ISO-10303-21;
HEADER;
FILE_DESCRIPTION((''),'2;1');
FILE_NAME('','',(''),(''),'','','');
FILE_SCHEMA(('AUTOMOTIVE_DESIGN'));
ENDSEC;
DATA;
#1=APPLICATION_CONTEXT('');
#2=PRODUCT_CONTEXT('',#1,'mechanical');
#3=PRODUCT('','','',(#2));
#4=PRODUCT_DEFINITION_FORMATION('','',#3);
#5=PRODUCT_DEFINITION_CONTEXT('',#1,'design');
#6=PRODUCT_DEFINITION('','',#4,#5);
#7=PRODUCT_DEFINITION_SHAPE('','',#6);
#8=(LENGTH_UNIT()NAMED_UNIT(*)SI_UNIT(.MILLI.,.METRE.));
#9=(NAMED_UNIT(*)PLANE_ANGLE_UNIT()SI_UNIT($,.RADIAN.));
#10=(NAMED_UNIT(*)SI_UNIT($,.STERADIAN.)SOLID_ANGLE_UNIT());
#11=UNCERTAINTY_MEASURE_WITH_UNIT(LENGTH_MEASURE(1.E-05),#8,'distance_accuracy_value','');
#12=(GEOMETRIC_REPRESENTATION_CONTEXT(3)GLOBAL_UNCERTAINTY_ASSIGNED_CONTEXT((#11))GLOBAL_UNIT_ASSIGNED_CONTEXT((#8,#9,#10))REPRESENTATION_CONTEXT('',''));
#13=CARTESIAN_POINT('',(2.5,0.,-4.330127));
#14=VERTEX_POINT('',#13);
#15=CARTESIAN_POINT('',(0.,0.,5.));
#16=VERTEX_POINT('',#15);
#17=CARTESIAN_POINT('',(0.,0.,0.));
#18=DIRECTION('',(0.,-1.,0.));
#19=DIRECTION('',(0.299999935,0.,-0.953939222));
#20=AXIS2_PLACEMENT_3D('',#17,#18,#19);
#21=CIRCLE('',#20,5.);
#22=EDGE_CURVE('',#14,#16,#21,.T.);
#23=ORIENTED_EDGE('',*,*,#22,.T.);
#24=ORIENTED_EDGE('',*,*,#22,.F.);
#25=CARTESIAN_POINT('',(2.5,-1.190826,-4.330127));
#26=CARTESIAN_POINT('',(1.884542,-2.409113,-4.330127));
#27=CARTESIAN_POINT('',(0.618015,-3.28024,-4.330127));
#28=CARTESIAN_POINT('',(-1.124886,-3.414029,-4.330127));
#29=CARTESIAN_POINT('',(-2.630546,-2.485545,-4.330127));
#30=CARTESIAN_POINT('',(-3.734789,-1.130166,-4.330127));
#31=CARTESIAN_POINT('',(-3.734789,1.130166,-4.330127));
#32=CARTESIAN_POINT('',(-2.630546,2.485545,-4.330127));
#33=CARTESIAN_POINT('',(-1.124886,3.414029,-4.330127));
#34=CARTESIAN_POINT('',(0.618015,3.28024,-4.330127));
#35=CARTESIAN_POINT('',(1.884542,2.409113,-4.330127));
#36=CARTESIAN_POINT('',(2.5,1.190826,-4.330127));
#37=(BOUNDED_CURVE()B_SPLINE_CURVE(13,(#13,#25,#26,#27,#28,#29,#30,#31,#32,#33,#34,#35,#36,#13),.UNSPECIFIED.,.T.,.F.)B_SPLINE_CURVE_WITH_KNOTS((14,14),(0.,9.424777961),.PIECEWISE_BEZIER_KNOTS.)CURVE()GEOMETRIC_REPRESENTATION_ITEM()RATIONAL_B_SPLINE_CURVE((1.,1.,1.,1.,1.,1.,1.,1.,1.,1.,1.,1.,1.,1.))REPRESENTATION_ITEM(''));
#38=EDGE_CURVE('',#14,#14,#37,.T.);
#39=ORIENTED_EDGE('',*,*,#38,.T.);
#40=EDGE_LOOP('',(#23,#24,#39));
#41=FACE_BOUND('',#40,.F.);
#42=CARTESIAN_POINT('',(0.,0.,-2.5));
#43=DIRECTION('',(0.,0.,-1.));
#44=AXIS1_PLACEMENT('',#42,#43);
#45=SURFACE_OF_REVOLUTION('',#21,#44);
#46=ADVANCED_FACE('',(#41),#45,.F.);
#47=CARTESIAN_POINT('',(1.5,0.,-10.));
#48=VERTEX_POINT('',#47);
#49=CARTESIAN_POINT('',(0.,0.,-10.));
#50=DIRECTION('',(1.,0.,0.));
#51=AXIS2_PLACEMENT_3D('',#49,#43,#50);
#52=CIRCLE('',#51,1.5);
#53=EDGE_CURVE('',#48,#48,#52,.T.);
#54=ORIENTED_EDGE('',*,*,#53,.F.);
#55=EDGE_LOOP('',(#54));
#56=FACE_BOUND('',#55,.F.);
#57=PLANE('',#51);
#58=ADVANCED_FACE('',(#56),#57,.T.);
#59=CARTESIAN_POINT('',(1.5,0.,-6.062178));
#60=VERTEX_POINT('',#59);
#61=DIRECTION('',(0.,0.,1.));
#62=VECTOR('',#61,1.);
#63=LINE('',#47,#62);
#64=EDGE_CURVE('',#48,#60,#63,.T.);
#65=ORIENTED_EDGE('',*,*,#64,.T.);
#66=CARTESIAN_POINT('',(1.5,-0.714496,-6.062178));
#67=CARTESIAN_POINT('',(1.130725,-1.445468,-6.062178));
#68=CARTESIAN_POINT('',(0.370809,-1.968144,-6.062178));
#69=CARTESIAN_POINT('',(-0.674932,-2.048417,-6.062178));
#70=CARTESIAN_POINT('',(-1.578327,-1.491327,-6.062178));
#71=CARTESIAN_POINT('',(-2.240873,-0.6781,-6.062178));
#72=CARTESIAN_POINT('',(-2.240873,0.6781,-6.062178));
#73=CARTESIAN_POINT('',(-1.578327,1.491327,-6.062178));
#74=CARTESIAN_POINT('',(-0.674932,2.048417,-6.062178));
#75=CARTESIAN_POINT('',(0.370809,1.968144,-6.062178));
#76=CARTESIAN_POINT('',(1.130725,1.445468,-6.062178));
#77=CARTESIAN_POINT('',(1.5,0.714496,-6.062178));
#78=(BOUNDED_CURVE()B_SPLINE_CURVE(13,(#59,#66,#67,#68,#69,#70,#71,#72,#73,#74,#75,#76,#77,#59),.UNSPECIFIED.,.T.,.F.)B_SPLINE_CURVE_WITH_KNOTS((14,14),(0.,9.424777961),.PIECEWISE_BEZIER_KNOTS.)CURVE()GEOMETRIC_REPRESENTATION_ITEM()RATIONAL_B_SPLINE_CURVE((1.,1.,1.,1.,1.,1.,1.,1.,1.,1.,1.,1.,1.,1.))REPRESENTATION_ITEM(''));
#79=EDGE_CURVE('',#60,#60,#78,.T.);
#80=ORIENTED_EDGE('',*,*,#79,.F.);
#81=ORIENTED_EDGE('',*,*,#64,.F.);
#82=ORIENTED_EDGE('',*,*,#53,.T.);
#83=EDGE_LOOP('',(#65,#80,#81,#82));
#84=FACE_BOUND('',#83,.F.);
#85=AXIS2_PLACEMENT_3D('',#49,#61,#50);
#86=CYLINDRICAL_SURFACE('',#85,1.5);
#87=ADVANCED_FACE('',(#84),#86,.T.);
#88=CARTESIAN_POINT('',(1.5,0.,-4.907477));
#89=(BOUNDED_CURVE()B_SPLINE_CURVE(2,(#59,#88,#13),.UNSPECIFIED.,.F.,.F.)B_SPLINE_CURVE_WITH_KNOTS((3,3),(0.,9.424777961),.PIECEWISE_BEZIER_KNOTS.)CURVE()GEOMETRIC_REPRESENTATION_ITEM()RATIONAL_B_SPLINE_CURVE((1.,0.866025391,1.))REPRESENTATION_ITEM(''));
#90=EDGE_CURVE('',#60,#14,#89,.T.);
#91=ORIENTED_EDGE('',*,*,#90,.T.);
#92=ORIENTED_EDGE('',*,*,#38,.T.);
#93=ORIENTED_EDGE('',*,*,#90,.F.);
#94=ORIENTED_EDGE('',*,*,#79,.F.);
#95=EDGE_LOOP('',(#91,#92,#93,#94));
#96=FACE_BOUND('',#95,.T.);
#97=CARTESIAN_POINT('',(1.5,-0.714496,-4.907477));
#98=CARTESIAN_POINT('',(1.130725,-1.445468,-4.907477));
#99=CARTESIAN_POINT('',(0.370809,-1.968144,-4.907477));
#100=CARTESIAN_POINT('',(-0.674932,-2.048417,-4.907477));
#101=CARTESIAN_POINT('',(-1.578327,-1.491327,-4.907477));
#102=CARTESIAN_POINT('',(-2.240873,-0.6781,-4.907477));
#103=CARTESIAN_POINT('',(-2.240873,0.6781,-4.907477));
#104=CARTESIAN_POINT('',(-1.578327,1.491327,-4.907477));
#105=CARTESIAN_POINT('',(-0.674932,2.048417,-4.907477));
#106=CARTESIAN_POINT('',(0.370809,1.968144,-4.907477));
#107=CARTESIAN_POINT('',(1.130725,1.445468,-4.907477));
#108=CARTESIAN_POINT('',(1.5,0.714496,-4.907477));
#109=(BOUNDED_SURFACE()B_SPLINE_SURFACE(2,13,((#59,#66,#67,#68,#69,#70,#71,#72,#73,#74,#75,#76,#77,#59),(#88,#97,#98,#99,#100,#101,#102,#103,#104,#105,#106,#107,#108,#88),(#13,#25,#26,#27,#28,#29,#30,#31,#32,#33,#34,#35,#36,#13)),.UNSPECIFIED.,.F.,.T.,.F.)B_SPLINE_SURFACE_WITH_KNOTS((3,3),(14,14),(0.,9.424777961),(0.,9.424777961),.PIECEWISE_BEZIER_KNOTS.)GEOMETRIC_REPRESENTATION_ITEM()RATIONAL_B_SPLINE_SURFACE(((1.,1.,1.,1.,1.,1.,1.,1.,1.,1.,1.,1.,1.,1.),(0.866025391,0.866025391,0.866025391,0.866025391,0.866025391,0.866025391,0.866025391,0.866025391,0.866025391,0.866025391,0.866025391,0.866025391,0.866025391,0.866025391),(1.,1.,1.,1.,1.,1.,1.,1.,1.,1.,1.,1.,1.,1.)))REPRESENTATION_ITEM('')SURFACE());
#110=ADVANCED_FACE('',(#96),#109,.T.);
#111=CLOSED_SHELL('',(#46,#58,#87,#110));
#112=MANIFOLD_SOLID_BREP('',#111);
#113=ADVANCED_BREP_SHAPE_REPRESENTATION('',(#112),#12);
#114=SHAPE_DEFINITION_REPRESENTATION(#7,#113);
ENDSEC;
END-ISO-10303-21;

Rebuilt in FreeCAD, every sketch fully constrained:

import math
import FreeCAD as App
import Part
import Sketcher
from FreeCAD import Vector
Q = App.Units.Quantity


def edges_at(feature, points):
    """Names of the edges that pass closest to the given points."""
    edges = feature.Shape.Edges
    near = lambda p: min(range(len(edges)), key=lambda i: edges[i].distToShape(Part.Vertex(*p))[0])
    return sorted({f"Edge{near(p) + 1}" for p in points})

doc = App.newDocument("Part")
body = doc.addObject("PartDesign::Body", "Body")

sketch1 = body.newObject("Sketcher::SketchObject", "Sketch")
sketch1.AttachmentSupport = (doc.getObject("XZ_Plane"), [""])
sketch1.MapMode = "FlatFace"
sketch1.addGeometry(Part.LineSegment(Vector(1.5, -10, 0), Vector(1.5, -4.8, 0)), False)
sketch1.addGeometry(Part.ArcOfCircle(Part.Circle(Vector(0, 0, 0), Vector(0, 0, 1), 5), math.radians(-73), math.radians(90)), False)
sketch1.addGeometry(Part.LineSegment(Vector(0, 5, 0), Vector(0, -10, 0)), False)
sketch1.addGeometry(Part.LineSegment(Vector(0, -10, 0), Vector(1.5, -10, 0)), False)
sketch1.addConstraint(Sketcher.Constraint("Coincident", 0, 2, 1, 1))
sketch1.addConstraint(Sketcher.Constraint("Coincident", 1, 2, 2, 1))
sketch1.addConstraint(Sketcher.Constraint("Coincident", 2, 2, 3, 1))
sketch1.addConstraint(Sketcher.Constraint("Coincident", 3, 2, 0, 1))
sketch1.addConstraint(Sketcher.Constraint("Vertical", 0))
sketch1.addConstraint(Sketcher.Constraint("Vertical", 2))
sketch1.addConstraint(Sketcher.Constraint("Horizontal", 3))
sketch1.addConstraint(Sketcher.Constraint("Coincident", 1, 3, -1, 1))
sketch1.addConstraint(Sketcher.Constraint("PointOnObject", 1, 2, -2))
sketch1.addConstraint(Sketcher.Constraint("Radius", 1, Q("5 mm")))
sketch1.addConstraint(Sketcher.Constraint("DistanceY", 2, 2, 2, 1, Q("15 mm")))
sketch1.addConstraint(Sketcher.Constraint("DistanceX", 3, 1, 3, 2, Q("1.5 mm")))
revolution = body.newObject("PartDesign::Revolution", "Revolution")
revolution.Profile = sketch1
revolution.ReferenceAxis = (sketch1, ["V_Axis"])
revolution.Angle = 360
doc.recompute()

fillet = body.newObject("PartDesign::Fillet", "Fillet")
fillet.Base = (revolution, edges_at(revolution, [(-1.5, 0, -4.77)]))
fillet.Radius = 2

doc.recompute()
